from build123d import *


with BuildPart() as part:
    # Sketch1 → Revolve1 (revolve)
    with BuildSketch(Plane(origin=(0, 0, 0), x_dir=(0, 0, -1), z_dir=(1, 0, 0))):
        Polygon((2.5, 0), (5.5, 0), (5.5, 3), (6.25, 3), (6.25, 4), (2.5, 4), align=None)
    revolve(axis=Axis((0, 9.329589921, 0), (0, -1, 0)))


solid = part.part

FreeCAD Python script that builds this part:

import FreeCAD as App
import Part
import Sketcher
from FreeCAD import Vector

doc = App.newDocument("Part")
body = doc.addObject("PartDesign::Body", "Body")

# Sketch on YZ plane
sketch1 = body.newObject("Sketcher::SketchObject", "Sketch")
sketch1.AttachmentSupport = (doc.getObject("YZ_Plane"), [""])
sketch1.MapMode = "FlatFace"
sketch1.addGeometry([
    Part.LineSegment(Vector(0, -2.5, 0), Vector(0, -5.5, 0)),  # 0
    Part.LineSegment(Vector(0, -5.5, 0), Vector(3, -5.5, 0)),  # 1
    Part.LineSegment(Vector(3, -5.5, 0), Vector(3, -6.2, 0)),  # 2
    Part.LineSegment(Vector(3, -6.2, 0), Vector(4, -6.2, 0)),  # 3
    Part.LineSegment(Vector(4, -6.2, 0), Vector(4, -2.5, 0)),  # 4
    Part.LineSegment(Vector(4, -2.5, 0), Vector(0, -2.5, 0)),  # 5
], False)
sketch1.addConstraint([
    Sketcher.Constraint("Coincident", 0, 2, 1, 1),
    Sketcher.Constraint("Coincident", 1, 2, 2, 1),
    Sketcher.Constraint("Coincident", 2, 2, 3, 1),
    Sketcher.Constraint("Coincident", 3, 2, 4, 1),
    Sketcher.Constraint("Coincident", 4, 2, 5, 1),
    Sketcher.Constraint("Coincident", 5, 2, 0, 1),
    Sketcher.Constraint("Vertical", 0),
    Sketcher.Constraint("Horizontal", 1),
    Sketcher.Constraint("Vertical", 2),
    Sketcher.Constraint("Horizontal", 3),
    Sketcher.Constraint("Vertical", 4),
    Sketcher.Constraint("Horizontal", 5),
    Sketcher.Constraint("PointOnObject", 0, 2, -2),
    Sketcher.Constraint("Equal", 1, 0),
    Sketcher.Constraint("DistanceX", 1, 1, 1, 2, 3.0),
    Sketcher.Constraint("DistanceX", 3, 1, 3, 2, 1.0),
    Sketcher.Constraint("DistanceY", 2, 2, 2, 1, 0.75),
    Sketcher.Constraint("DistanceY", 0, 2, -1, 1, 5.5),
])
revolution = body.newObject("PartDesign::Revolution", "Revolution")
revolution.Profile = sketch1
revolution.ReferenceAxis = (sketch1, ["H_Axis"])
revolution.Angle = 360

doc.recompute()
